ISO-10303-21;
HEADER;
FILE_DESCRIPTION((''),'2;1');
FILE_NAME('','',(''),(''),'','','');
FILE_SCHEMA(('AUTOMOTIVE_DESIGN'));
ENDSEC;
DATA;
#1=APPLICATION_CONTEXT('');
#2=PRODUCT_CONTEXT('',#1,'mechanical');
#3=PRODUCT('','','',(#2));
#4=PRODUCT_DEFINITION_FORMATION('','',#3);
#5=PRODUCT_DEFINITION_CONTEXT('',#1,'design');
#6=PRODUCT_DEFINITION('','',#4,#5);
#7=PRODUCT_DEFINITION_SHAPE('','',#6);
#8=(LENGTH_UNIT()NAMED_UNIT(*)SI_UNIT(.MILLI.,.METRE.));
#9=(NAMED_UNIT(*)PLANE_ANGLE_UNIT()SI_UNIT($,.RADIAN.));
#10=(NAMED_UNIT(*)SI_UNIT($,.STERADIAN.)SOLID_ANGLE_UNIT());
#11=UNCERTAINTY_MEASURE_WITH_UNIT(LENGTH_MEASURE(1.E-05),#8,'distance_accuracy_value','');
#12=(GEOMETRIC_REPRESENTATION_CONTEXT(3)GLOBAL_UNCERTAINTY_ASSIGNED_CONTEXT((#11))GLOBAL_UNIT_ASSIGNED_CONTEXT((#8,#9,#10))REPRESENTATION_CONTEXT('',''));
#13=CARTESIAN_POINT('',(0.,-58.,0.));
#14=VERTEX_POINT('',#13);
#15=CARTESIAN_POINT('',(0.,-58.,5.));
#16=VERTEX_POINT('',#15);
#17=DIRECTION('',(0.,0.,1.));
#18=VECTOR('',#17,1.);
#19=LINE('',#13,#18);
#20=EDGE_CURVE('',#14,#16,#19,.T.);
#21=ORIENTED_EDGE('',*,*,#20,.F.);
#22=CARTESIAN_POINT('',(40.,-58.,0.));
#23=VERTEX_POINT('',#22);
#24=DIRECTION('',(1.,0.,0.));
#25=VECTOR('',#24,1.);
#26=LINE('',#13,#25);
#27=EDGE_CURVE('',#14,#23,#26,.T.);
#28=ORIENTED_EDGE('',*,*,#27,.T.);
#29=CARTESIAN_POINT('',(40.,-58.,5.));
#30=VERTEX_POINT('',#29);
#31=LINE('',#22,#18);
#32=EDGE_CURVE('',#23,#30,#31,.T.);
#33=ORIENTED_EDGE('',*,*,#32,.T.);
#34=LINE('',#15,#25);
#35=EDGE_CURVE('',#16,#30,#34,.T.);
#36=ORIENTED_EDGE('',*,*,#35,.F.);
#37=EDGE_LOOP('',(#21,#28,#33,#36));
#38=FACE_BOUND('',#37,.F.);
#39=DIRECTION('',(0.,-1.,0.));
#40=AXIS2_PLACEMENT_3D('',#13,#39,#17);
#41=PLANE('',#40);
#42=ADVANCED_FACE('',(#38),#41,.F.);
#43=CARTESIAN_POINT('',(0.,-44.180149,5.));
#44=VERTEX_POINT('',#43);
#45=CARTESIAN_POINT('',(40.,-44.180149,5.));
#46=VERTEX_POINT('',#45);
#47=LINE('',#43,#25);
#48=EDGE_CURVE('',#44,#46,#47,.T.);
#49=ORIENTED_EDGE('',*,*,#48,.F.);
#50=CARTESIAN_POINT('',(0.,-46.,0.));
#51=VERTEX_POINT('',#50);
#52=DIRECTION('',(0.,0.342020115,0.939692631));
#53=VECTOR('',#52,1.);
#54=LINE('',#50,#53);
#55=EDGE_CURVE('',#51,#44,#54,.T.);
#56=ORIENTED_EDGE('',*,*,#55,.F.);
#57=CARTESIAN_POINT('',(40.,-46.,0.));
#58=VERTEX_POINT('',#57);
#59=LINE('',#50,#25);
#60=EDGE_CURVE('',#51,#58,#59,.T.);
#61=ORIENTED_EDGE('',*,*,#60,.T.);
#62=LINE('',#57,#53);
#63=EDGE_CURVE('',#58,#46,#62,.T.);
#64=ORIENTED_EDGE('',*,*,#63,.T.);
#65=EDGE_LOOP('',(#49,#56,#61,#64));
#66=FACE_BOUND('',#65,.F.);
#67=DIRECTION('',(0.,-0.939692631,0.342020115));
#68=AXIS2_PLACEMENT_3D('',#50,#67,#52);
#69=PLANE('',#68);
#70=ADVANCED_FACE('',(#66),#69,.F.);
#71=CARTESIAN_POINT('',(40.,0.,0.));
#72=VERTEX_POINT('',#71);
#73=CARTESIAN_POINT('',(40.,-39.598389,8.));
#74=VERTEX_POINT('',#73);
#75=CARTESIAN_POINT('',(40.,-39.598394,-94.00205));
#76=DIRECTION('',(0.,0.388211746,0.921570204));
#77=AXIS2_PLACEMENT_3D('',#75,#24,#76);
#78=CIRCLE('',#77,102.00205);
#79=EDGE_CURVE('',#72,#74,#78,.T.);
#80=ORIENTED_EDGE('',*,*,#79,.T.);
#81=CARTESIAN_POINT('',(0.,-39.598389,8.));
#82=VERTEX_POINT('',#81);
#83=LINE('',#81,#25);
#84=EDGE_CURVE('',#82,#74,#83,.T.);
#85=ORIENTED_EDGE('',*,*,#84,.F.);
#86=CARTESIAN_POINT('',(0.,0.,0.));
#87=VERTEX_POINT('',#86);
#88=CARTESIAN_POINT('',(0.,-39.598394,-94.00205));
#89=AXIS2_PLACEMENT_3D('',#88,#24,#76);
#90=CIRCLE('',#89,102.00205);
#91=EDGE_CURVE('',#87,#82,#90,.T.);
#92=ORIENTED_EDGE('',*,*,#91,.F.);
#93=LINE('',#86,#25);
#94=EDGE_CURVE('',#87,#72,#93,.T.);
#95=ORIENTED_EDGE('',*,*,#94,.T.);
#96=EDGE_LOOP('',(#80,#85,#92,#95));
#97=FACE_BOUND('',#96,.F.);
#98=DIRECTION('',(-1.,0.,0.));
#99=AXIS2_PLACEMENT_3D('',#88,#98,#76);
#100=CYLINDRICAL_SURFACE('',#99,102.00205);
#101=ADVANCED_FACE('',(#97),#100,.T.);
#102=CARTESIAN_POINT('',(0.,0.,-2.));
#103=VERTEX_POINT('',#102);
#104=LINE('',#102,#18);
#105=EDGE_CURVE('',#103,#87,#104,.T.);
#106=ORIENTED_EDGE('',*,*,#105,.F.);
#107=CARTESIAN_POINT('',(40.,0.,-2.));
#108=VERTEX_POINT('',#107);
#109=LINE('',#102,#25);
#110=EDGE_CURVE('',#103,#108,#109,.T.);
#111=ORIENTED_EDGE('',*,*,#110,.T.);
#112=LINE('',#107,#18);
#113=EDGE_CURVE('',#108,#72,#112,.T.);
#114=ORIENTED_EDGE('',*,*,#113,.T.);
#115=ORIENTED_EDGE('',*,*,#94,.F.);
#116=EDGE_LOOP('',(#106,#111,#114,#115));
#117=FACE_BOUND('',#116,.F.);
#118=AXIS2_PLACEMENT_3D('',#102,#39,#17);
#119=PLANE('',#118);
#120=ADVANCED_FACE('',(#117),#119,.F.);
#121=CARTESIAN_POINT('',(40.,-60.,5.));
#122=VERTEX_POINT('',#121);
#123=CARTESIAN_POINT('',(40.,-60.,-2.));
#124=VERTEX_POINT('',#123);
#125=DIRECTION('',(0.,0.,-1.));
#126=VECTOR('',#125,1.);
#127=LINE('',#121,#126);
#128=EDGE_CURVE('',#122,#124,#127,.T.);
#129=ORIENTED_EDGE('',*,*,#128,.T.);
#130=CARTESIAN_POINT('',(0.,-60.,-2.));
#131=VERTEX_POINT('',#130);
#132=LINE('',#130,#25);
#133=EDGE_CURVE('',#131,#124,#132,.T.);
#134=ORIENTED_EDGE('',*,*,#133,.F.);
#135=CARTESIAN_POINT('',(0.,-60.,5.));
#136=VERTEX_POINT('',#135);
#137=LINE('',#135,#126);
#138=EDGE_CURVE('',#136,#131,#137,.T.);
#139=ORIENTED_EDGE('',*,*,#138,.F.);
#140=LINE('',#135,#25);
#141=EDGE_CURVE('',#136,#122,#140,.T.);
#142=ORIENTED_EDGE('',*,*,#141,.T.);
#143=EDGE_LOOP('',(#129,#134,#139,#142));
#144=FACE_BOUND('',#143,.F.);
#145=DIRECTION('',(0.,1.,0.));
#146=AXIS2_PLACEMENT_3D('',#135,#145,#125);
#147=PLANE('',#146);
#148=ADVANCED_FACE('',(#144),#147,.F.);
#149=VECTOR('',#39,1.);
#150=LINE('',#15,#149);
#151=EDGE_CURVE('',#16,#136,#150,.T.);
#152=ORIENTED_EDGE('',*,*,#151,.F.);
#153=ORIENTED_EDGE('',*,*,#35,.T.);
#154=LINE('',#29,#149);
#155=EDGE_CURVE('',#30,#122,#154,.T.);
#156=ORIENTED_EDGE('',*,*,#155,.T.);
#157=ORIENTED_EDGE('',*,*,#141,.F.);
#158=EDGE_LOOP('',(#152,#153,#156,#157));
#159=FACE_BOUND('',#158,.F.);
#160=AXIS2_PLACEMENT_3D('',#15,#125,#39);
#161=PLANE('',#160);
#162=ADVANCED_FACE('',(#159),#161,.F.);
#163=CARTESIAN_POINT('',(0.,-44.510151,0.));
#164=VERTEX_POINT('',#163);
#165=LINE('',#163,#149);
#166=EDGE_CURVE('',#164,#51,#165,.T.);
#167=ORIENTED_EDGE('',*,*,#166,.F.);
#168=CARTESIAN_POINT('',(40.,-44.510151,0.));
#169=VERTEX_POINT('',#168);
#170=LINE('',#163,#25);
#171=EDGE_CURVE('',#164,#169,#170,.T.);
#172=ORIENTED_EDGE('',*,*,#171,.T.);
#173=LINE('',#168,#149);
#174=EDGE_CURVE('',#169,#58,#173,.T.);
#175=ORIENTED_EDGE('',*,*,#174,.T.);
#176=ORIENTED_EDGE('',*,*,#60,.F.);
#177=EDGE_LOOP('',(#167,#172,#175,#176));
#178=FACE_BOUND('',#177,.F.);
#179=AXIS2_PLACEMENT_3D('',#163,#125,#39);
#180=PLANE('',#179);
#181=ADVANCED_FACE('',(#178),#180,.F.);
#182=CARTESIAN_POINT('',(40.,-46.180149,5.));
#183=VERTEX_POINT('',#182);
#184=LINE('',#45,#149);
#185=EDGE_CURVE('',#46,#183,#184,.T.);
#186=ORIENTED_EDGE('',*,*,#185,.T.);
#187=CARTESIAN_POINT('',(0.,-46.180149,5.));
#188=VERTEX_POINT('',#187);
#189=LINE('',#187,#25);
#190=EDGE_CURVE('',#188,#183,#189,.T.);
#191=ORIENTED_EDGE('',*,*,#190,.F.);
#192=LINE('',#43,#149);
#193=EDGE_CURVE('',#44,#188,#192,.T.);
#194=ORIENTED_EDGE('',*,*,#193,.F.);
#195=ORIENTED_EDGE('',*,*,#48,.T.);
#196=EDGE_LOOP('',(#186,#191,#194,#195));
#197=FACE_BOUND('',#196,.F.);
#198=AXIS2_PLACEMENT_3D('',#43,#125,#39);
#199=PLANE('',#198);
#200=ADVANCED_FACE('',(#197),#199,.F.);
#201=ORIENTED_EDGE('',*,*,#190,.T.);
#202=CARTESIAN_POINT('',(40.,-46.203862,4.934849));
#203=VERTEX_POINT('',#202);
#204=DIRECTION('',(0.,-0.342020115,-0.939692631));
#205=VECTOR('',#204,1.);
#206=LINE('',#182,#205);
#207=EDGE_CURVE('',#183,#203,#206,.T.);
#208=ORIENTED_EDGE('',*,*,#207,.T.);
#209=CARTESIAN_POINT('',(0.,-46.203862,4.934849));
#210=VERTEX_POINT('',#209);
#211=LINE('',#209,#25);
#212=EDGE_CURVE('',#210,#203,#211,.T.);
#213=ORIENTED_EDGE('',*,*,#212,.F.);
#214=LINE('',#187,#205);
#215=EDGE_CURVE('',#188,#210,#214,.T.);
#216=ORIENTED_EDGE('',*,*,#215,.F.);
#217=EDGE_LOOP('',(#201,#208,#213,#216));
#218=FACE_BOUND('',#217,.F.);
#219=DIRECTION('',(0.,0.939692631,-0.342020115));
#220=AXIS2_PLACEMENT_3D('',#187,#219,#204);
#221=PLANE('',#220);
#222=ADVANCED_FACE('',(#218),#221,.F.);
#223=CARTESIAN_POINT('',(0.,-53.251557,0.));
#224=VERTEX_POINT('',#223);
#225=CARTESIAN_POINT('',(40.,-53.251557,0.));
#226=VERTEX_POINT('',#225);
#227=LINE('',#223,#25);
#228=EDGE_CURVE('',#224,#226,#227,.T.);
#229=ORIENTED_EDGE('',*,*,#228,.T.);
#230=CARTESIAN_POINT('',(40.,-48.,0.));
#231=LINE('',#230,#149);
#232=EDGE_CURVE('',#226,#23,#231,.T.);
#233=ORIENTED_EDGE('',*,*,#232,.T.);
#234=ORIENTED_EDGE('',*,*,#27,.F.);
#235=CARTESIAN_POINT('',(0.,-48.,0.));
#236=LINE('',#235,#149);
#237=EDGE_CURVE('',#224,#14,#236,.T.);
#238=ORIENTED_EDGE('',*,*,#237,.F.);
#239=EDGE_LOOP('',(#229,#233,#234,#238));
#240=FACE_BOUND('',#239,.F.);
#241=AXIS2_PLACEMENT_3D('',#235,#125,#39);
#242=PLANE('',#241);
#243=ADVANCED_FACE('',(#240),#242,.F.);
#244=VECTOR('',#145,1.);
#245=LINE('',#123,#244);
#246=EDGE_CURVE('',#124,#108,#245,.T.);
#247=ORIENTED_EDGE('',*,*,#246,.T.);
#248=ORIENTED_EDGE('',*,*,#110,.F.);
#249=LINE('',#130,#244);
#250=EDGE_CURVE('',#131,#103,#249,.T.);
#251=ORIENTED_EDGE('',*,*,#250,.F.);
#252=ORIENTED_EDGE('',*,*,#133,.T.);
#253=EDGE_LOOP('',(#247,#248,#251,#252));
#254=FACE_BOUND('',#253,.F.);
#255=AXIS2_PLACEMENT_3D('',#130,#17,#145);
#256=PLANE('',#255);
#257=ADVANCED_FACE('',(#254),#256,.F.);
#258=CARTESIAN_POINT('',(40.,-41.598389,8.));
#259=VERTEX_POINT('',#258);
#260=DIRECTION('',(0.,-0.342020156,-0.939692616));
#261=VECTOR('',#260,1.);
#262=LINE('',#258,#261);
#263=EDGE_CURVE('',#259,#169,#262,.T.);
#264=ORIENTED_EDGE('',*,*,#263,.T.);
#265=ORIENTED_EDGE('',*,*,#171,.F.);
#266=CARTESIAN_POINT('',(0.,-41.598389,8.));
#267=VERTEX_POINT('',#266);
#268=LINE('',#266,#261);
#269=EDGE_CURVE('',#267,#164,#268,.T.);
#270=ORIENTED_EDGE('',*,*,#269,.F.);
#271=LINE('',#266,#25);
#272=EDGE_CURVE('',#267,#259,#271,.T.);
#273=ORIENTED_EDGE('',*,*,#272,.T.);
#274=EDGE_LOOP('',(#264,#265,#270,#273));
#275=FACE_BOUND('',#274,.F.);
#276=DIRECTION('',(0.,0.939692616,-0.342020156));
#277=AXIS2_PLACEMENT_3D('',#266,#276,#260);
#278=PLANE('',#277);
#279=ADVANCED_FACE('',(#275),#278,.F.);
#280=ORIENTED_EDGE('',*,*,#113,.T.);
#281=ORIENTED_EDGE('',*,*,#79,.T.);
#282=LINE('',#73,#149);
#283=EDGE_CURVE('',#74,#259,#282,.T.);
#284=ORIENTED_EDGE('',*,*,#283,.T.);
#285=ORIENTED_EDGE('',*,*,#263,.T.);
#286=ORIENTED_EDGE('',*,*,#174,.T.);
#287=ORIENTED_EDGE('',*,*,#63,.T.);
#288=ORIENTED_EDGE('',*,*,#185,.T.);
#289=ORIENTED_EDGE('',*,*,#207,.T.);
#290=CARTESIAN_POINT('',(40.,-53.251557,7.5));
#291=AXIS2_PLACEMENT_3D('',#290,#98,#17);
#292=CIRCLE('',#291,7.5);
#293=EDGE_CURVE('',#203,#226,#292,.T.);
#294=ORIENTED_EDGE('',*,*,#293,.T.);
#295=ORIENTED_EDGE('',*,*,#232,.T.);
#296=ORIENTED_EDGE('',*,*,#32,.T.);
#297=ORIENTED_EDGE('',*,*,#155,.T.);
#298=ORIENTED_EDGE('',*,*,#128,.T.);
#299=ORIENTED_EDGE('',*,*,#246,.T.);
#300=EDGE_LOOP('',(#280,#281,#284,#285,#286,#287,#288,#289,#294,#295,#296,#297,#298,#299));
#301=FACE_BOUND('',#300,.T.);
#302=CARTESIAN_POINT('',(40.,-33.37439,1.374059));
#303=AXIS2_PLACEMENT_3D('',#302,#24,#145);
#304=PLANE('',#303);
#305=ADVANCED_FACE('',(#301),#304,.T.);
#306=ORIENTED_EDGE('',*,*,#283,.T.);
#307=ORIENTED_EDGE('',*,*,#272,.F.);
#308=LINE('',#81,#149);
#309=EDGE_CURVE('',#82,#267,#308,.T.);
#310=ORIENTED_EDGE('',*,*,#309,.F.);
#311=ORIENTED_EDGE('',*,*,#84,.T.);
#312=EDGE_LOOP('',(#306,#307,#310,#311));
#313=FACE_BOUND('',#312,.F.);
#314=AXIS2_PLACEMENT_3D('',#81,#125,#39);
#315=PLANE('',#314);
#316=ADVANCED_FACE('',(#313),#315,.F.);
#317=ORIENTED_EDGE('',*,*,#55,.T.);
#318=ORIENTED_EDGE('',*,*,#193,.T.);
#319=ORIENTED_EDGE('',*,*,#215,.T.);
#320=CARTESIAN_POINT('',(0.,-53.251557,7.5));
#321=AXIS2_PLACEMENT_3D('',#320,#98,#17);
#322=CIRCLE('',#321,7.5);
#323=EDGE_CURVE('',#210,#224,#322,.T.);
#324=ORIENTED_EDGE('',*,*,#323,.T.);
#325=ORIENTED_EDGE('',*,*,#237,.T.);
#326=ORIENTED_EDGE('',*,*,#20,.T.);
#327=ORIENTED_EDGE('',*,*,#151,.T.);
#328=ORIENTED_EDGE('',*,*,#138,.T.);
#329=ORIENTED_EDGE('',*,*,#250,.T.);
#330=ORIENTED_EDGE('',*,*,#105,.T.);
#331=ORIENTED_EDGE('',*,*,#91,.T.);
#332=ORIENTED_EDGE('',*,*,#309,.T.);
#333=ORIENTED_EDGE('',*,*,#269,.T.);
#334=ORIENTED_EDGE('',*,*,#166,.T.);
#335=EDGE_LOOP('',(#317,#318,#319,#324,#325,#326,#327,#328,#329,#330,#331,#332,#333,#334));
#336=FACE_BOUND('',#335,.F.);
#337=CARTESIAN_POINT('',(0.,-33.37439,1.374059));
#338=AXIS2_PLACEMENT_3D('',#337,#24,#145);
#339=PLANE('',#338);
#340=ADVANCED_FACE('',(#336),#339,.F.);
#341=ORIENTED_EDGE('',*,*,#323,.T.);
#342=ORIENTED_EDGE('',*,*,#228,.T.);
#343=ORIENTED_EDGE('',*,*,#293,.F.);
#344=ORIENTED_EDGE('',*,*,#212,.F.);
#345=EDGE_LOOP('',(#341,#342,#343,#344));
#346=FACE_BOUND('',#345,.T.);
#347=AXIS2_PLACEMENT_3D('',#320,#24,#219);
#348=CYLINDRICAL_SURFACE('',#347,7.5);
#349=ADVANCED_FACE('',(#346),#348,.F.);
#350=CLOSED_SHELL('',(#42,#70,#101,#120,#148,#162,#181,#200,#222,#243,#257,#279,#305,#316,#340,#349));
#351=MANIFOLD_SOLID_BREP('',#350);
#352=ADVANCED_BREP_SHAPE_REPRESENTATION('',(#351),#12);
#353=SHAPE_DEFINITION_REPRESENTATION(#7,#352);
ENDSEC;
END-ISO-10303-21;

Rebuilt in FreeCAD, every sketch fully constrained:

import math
import FreeCAD as App
import Part
import Sketcher

V = App.Vector
Q = App.Units.Quantity


def edges_at(feature, points):
    """Names of the edges that pass closest to the given points."""
    edges = feature.Shape.Edges
    near = lambda p: min(range(len(edges)), key=lambda i: edges[i].distToShape(Part.Vertex(*p))[0])
    return sorted({f"Edge{near(p) + 1}" for p in points})

doc = App.newDocument("Part")
body = doc.addObject("PartDesign::Body", "Body")

# Sketch on YZ plane
sketch1 = body.newObject("Sketcher::SketchObject", "Sketch")
sketch1.AttachmentSupport = (doc.getObject("YZ_Plane"), [""])
sketch1.MapMode = "FlatFace"
sketch1.addGeometry([
    Part.LineSegment(V(0, -2, 0), V(0, 0, 0)),  # 0
    Part.ArcOfCircle(Part.Circle(V(-39.6, -94, 0), V(0, 0, 1), 102), math.radians(67), math.radians(90)),  # 1
    Part.LineSegment(V(-39.6, 8, 0), V(-41.6, 8, 0)),  # 2
    Part.LineSegment(V(-41.6, 8, 0), V(-44.5, 0, 0)),  # 3
    Part.LineSegment(V(-44.5, 0, 0), V(-46, 0, 0)),  # 4
    Part.LineSegment(V(-46, 0, 0), V(-44.2, 5, 0)),  # 5
    Part.LineSegment(V(-44.2, 5, 0), V(-46.2, 5, 0)),  # 6
    Part.LineSegment(V(-46.2, 5, 0), V(-48, 0, 0)),  # 7
    Part.LineSegment(V(-48, 0, 0), V(-58, 0, 0)),  # 8
    Part.LineSegment(V(-58, 0, 0), V(-58, 5, 0)),  # 9
    Part.LineSegment(V(-58, 5, 0), V(-60, 5, 0)),  # 10
    Part.LineSegment(V(-60, 5, 0), V(-60, -2, 0)),  # 11
    Part.LineSegment(V(-60, -2, 0), V(0, -2, 0)),  # 12
], False)
sketch1.addConstraint([
    Sketcher.Constraint("Coincident", 0, 2, 1, 1),
    Sketcher.Constraint("Tangent", 1, 2, 2, 1),
    Sketcher.Constraint("Coincident", 2, 2, 3, 1),
    Sketcher.Constraint("Coincident", 3, 2, 4, 1),
    Sketcher.Constraint("Coincident", 4, 2, 5, 1),
    Sketcher.Constraint("Coincident", 5, 2, 6, 1),
    Sketcher.Constraint("Coincident", 6, 2, 7, 1),
    Sketcher.Constraint("Coincident", 7, 2, 8, 1),
    Sketcher.Constraint("Coincident", 8, 2, 9, 1),
    Sketcher.Constraint("Coincident", 9, 2, 10, 1),
    Sketcher.Constraint("Coincident", 10, 2, 11, 1),
    Sketcher.Constraint("Coincident", 11, 2, 12, 1),
    Sketcher.Constraint("Coincident", 12, 2, 0, 1),
    Sketcher.Constraint("Vertical", 0),
    Sketcher.Constraint("Horizontal", 2),
    Sketcher.Constraint("Horizontal", 4),
    Sketcher.Constraint("Horizontal", 6),
    Sketcher.Constraint("Horizontal", 8),
    Sketcher.Constraint("Vertical", 9),
    Sketcher.Constraint("Horizontal", 10),
    Sketcher.Constraint("Vertical", 11),
    Sketcher.Constraint("Horizontal", 12),
    Sketcher.Constraint("Coincident", 0, 2, -1, 1),
    Sketcher.Constraint("PointOnObject", 3, 2, -1),
    Sketcher.Constraint("PointOnObject", 7, 2, -1),
    Sketcher.Constraint("Parallel", 3, 5),
    Sketcher.Constraint("Parallel", 5, 7),
    Sketcher.Constraint("Horizontal", 6, 2, 9, 2),
    Sketcher.Constraint("Equal", 2, 6),
    Sketcher.Constraint("Equal", 6, 10),
    Sketcher.Constraint("Equal", 10, 0),
    Sketcher.Constraint("DistanceX", 2, 2, 2, 1, 2.0),
    Sketcher.Constraint("DistanceX", 8, 2, 8, 1, 10.0),
    Sketcher.Constraint("DistanceX", 12, 1, 12, 2, 60.0),
    Sketcher.Constraint("DistanceY", 9, 1, 9, 2, 5.0),
    Sketcher.Constraint("Angle", 3, Q("-110.000001 deg")),
    Sketcher.Constraint("DistanceY", -1, 1, 1, 2, 8.0),
    Sketcher.Constraint("Radius", 1, 102.00205),
])
pad1 = body.newObject("PartDesign::Pad", "Pad")
pad1.Profile = sketch1
pad1.Length = 40
doc.recompute()

fillet = body.newObject("PartDesign::Fillet", "Fillet")
fillet.Base = (pad1, edges_at(pad1, [(20, -48, 0)]))
fillet.Radius = 7.5

doc.recompute()
